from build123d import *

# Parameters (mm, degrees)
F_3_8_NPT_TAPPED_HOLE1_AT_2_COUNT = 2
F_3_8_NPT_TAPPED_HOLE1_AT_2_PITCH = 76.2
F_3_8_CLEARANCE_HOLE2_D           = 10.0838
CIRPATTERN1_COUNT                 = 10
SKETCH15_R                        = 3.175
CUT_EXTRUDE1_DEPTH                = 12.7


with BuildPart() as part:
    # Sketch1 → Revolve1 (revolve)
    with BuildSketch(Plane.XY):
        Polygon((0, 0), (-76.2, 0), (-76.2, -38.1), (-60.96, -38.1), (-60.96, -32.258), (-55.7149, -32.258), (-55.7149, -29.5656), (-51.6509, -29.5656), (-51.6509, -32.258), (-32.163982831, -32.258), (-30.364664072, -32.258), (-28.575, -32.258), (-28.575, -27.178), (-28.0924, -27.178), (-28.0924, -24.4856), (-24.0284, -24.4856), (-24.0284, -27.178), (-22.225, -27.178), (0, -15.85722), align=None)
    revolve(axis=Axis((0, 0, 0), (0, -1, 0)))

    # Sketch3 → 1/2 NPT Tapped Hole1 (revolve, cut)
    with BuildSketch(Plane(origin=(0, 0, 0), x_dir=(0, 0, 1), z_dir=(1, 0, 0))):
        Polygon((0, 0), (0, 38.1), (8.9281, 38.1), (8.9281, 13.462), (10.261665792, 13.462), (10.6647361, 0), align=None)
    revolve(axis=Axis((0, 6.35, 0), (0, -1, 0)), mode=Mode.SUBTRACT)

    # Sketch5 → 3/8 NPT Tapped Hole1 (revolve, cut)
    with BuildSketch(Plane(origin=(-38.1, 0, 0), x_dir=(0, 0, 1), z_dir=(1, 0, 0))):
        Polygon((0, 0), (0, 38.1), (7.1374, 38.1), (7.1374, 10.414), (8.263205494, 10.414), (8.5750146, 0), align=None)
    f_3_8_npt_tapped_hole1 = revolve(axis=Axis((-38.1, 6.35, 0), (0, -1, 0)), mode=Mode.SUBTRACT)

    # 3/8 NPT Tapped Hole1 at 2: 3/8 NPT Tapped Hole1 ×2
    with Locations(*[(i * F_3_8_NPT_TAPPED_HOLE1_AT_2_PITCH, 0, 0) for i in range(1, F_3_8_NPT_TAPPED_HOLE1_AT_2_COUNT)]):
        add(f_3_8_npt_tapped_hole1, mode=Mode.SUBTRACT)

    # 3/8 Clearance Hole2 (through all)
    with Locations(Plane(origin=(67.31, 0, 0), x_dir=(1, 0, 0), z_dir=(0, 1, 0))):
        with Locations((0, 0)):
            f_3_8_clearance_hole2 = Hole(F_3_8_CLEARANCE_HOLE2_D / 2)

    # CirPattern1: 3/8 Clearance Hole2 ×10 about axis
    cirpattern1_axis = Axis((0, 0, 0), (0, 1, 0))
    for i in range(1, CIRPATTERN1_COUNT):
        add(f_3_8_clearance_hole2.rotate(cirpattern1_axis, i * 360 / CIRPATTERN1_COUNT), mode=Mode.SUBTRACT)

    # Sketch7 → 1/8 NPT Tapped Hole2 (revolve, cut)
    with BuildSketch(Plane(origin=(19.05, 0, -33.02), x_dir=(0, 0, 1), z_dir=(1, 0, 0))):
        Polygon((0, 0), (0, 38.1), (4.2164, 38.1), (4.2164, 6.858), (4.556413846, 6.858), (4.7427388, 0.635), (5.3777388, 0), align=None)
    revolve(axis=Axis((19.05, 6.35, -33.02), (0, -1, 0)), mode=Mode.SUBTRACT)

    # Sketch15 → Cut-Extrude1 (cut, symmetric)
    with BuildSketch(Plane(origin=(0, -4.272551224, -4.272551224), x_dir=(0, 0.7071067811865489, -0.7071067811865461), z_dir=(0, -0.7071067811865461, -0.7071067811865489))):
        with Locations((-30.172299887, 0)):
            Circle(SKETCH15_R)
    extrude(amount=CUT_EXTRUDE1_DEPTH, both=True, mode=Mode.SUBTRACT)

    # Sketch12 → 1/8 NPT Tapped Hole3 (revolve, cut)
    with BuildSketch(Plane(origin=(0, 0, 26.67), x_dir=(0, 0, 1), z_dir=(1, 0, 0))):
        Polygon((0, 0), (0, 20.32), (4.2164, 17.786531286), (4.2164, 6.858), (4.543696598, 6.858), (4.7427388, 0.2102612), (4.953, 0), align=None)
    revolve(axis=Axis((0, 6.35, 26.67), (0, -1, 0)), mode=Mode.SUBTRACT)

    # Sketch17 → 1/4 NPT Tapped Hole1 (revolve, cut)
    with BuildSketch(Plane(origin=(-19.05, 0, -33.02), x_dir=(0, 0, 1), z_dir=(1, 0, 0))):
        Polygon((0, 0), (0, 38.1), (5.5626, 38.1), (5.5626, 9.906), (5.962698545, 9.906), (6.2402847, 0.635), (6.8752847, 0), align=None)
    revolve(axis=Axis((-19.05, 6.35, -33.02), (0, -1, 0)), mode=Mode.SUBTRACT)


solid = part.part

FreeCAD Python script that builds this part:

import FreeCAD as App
import Part
import Sketcher

V = App.Vector
Q = App.Units.Quantity


def add_polygon(sketch, points):
    """Adds a closed chain of lines whose ends are joined by coincident constraints."""
    first, n = sketch.GeometryCount, len(points)
    for a, b in zip(points, points[1:] + points[:1]):
        sketch.addGeometry(Part.LineSegment(App.Vector(*a, 0), App.Vector(*b, 0)), False)
    for i in range(n):
        sketch.addConstraint(Sketcher.Constraint("Coincident", first + i, 2, first + (i + 1) % n, 1))

doc = App.newDocument("Part")
params = doc.addObject("Spreadsheet::Sheet", "Params")
for row, (alias, value) in enumerate([
    ("sketch1_width", "3 in"),
    ("sketch1_width2", "0.6 in"),
    ("sketch1_height", "1.5 in"),
    ("sketch1_height2", "0.2 in"),
    ("sketch1_width3", "0.16 in"),
    ("revolution_angle", "360 deg"),
    ("sketch2_width", "1.5 in"),
    ("sketch2_width2", "0.97 in"),
    ("groove_angle", "360 deg"),
    ("sketch3_width", "1.5 in"),
    ("sketch3_width2", "1.09 in"),
    ("sketch3_height", "0.281 in"),
    ("groove2_angle", "360 deg"),
    ("linearpattern_pitch", "3 in"),
    ("sketch4_diameter", "0.397 in"),
    ("hole_diameter", "0.397 in"),
    ("sketch5_width", "1.5 in"),
    ("sketch5_width2", "1.23 in"),
    ("sketch5_height", "0.166 in"),
    ("groove3_angle", "360 deg"),
    ("sketch6_diameter", "0.25 in"),
    ("pocket1_length", "1 in"),
    ("sketch7_width", "0.8 in"),
    ("sketch7_height", "0.195 in"),
    ("groove4_angle", "360 deg"),
    ("sketch8_width", "1.5 in"),
    ("sketch8_width2", "1.11 in"),
    ("sketch8_height", "0.219 in"),
    ("groove5_angle", "360 deg"),
], start=1):
    params.set(f"A{row}", alias)
    params.set(f"B{row}", "=" + value)
    params.setAlias(f"B{row}", alias)

body = doc.addObject("PartDesign::Body", "Body")

sketch1 = body.newObject("Sketcher::SketchObject", "Sketch")
sketch1.AttachmentSupport = (doc.getObject("XY_Plane"), [""])
sketch1.MapMode = "FlatFace"
add_polygon(sketch1, [(0, 0), (-76.2, 0), (-76.2, -38.1), (-60.96, -38.1), (-60.96, -32.26), (-55.71, -32.26), (-55.71, -29.57), (-51.65, -29.57), (-51.65, -32.26), (-28.57, -32.26), (-28.57, -27.18), (-28.09, -27.18), (-28.09, -24.49), (-24.03, -24.49), (-24.03, -27.18), (-22.23, -27.18), (0, -15.86)])
sketch1.addConstraint([
    Sketcher.Constraint("Horizontal", 0),
    Sketcher.Constraint("Vertical", 1),
    Sketcher.Constraint("Horizontal", 2),
    Sketcher.Constraint("Vertical", 3),
    Sketcher.Constraint("Horizontal", 4),
    Sketcher.Constraint("Vertical", 5),
    Sketcher.Constraint("Horizontal", 6),
    Sketcher.Constraint("Vertical", 7),
    Sketcher.Constraint("Horizontal", 8),
    Sketcher.Constraint("Vertical", 9),
    Sketcher.Constraint("Horizontal", 10),
    Sketcher.Constraint("Vertical", 11),
    Sketcher.Constraint("Horizontal", 12),
    Sketcher.Constraint("Vertical", 13),
    Sketcher.Constraint("Horizontal", 14),
    Sketcher.Constraint("Vertical", 16),
    Sketcher.Constraint("Coincident", 16, 2, -1, 1),
    Sketcher.Constraint("Horizontal", 4, 2, 7, 2),
    Sketcher.Constraint("Horizontal", 10, 2, 13, 2),
    Sketcher.Constraint("Equal", 6, 12),
    Sketcher.Constraint("Equal", 7, 11),
    Sketcher.Constraint("DistanceX", 0, 2, 0, 1, Q("3 in")),
    Sketcher.Constraint("DistanceX", 2, 1, 2, 2, Q("0.6 in")),
    Sketcher.Constraint("DistanceY", 1, 2, 1, 1, Q("1.5 in")),
    Sketcher.Constraint("DistanceY", 9, 1, 9, 2, Q("0.2 in")),
    Sketcher.Constraint("DistanceX", 6, 1, 6, 2, Q("0.16 in")),
    Sketcher.Constraint("DistanceY", 3, 1, 3, 2, Q("0.23 in")),
    Sketcher.Constraint("DistanceX", 10, 1, 10, 2, Q("0.019 in")),
    Sketcher.Constraint("DistanceX", 14, 1, 14, 2, Q("0.071 in")),
    Sketcher.Constraint("DistanceY", 5, 1, 5, 2, Q("0.106 in")),
    Sketcher.Constraint("DistanceX", 4, 1, 4, 2, Q("0.2065 in")),
    Sketcher.Constraint("DistanceX", 8, 1, 8, 2, Q("0.9085 in")),
    Sketcher.Constraint("DistanceY", 16, 1, 16, 2, Q("0.6243 in")),
])
sketch1.setExpression("Constraints[38]", "Params.sketch1_width")
sketch1.setExpression("Constraints[39]", "Params.sketch1_width2")
sketch1.setExpression("Constraints[40]", "Params.sketch1_height")
sketch1.setExpression("Constraints[41]", "Params.sketch1_height2")
sketch1.setExpression("Constraints[42]", "Params.sketch1_width3")
revolution = body.newObject("PartDesign::Revolution", "Revolution")
revolution.Profile = sketch1
revolution.ReferenceAxis = (sketch1, ["V_Axis"])
revolution.setExpression("Angle", "Params.revolution_angle")

sketch2 = body.newObject("Sketcher::SketchObject", "Sketch001")
sketch2.AttachmentSupport = (doc.getObject("YZ_Plane"), [""])
sketch2.MapMode = "FlatFace"
add_polygon(sketch2, [(-38.1, 0), (0, 0), (0, 10.7), (-13.5, 10.3), (-13.5, 8.9), (-38.1, 8.9)])
sketch2.addConstraint([
    Sketcher.Constraint("Horizontal", 0),
    Sketcher.Constraint("Vertical", 1),
    Sketcher.Constraint("Vertical", 3),
    Sketcher.Constraint("Horizontal", 4),
    Sketcher.Constraint("Vertical", 5),
    Sketcher.Constraint("Coincident", 0, 2, -1, 1),
    Sketcher.Constraint("DistanceX", 0, 1, 0, 2, Q("1.5 in")),
    Sketcher.Constraint("DistanceX", 4, 2, 4, 1, Q("0.97 in")),
    Sketcher.Constraint("DistanceY", 5, 2, 5, 1, Q("0.3515 in")),
    Sketcher.Constraint("DistanceY", 1, 1, 1, 2, Q("10.664736 mm")),
    Sketcher.Constraint("DistanceY", 3, 2, 3, 1, Q("1.333566 mm")),
])
sketch2.setExpression("Constraints[12]", "Params.sketch2_width")
sketch2.setExpression("Constraints[13]", "Params.sketch2_width2")
groove = body.newObject("PartDesign::Groove", "Groove")
groove.Profile = sketch2
groove.ReferenceAxis = (sketch2, ["H_Axis"])
groove.setExpression("Angle", "Params.groove_angle")

sketch3 = body.newObject("Sketcher::SketchObject", "Sketch002")
sketch3.AttachmentSupport = (doc.getObject("YZ_Plane"), [""])
sketch3.MapMode = "FlatFace"
sketch3.AttachmentOffset = App.Placement(V(0, 0, -1.5 * 25.4), App.Rotation())
add_polygon(sketch3, [(-38.1, 0), (0, 0), (0, 8.6), (-10.4, 8.3), (-10.4, 7.1), (-38.1, 7.1)])
sketch3.addConstraint([
    Sketcher.Constraint("Horizontal", 0),
    Sketcher.Constraint("Vertical", 1),
    Sketcher.Constraint("Vertical", 3),
    Sketcher.Constraint("Horizontal", 4),
    Sketcher.Constraint("Vertical", 5),
    Sketcher.Constraint("Coincident", 0, 2, -1, 1),
    Sketcher.Constraint("DistanceX", 0, 1, 0, 2, Q("1.5 in")),
    Sketcher.Constraint("DistanceX", 4, 2, 4, 1, Q("1.09 in")),
    Sketcher.Constraint("DistanceY", 5, 2, 5, 1, Q("0.281 in")),
    Sketcher.Constraint("DistanceY", 1, 1, 1, 2, Q("8.575015 mm")),
    Sketcher.Constraint("DistanceY", 3, 2, 3, 1, Q("1.125805 mm")),
])
sketch3.setExpression("Constraints[12]", "Params.sketch3_width")
sketch3.setExpression("Constraints[13]", "Params.sketch3_width2")
sketch3.setExpression("Constraints[14]", "Params.sketch3_height")
groove2 = body.newObject("PartDesign::Groove", "Groove001")
groove2.Profile = sketch3
groove2.ReferenceAxis = (sketch3, ["H_Axis"])
groove2.setExpression("Angle", "Params.groove2_angle")
doc.recompute()

linearpattern = body.newObject("PartDesign::LinearPattern", "LinearPattern")
linearpattern.Originals = [groove2]
linearpattern.Direction = (doc.getObject("X_Axis"), [""])
linearpattern.Mode = "offset"
linearpattern.setExpression("Offset", "Params.linearpattern_pitch")
linearpattern.Occurrences = 2
body.Tip = linearpattern

sketch4 = body.newObject("Sketcher::SketchObject", "Sketch003")
sketch4.AttachmentSupport = (doc.getObject("XZ_Plane"), [""])
sketch4.MapMode = "FlatFace"
sketch4.addGeometry(Part.Circle(V(67, 0, 0), V(0, 0, 1), 5), False)
sketch4.addConstraint([
    Sketcher.Constraint("PointOnObject", 0, 3, -1),
    Sketcher.Constraint("Diameter", 0, Q("0.397 in")),
    Sketcher.Constraint("DistanceX", -1, 1, 0, 3, Q("2.65 in")),
])
sketch4.setExpression("Constraints[1]", "Params.sketch4_diameter")
doc.recompute()
hole = body.newObject("PartDesign::Hole", "Hole")
hole.Profile = sketch4
hole.ThreadType = "None"
hole.setExpression("Diameter", "Params.hole_diameter")
hole.DepthType = "ThroughAll"
hole.Reversed = True
doc.recompute()

polarpattern = body.newObject("PartDesign::PolarPattern", "PolarPattern")
polarpattern.Originals = [hole]
polarpattern.Axis = (doc.getObject("Y_Axis"), [""])
polarpattern.Angle = 360
polarpattern.Occurrences = 10
body.Tip = polarpattern

sketch5 = body.newObject("Sketcher::SketchObject", "Sketch004")
sketch5.AttachmentSupport = (doc.getObject("YZ_Plane"), [""])
sketch5.MapMode = "FlatFace"
sketch5.AttachmentOffset = App.Placement(V(0, 0, 0.75 * 25.4), App.Rotation())
add_polygon(sketch5, [(-38.1, -33.02), (0, -33.02), (0, -27.64), (-0.64, -28.28), (-6.86, -28.46), (-6.86, -28.8), (-38.1, -28.8)])
sketch5.addGeometry(Part.LineSegment(V(0, -33.02, 0), V(-38.1, -33.02, 0)), True)
sketch5.addConstraint([
    Sketcher.Constraint("Horizontal", 0),
    Sketcher.Constraint("Vertical", 1),
    Sketcher.Constraint("Vertical", 4),
    Sketcher.Constraint("Horizontal", 5),
    Sketcher.Constraint("Vertical", 6),
    Sketcher.Constraint("Horizontal", 7),
    Sketcher.Constraint("Coincident", 7, 1, 0, 2),
    Sketcher.Constraint("PointOnObject", 0, 2, -2),
    Sketcher.Constraint("Vertical", 5, 2, 7, 2),
    Sketcher.Constraint("DistanceX", 0, 1, 0, 2, Q("1.5 in")),
    Sketcher.Constraint("Angle", 2, Q("-135 deg")),
    Sketcher.Constraint("DistanceX", 5, 2, 5, 1, Q("1.23 in")),
    Sketcher.Constraint("DistanceY", 0, 2, -1, 1, Q("1.3 in")),
    Sketcher.Constraint("DistanceY", 6, 2, 6, 1, Q("0.166 in")),
    Sketcher.Constraint("DistanceX", 2, 2, -1, 1, Q("0.025 in")),
    Sketcher.Constraint("DistanceY", 1, 1, 1, 2, Q("5.377739 mm")),
    Sketcher.Constraint("Distance", 3, Q("6.225789 mm")),
])
sketch5.setExpression("Constraints[16]", "Params.sketch5_width")
sketch5.setExpression("Constraints[18]", "Params.sketch5_width2")
sketch5.setExpression("Constraints[20]", "Params.sketch5_height")
groove3 = body.newObject("PartDesign::Groove", "Groove002")
groove3.Profile = sketch5
groove3.ReferenceAxis = (sketch5, ["Axis0"])
groove3.setExpression("Angle", "Params.groove3_angle")

sketch6 = body.newObject("Sketcher::SketchObject", "Sketch005")
sketch6.Placement = App.Placement(V(0, -4.272551, -4.272551), App.Rotation(V(0, 0.707106781, -0.707106781), V(0.999999999, 0, 0), V(0, -0.707106781, -0.707106781), "ZXY"))
sketch6.addGeometry(Part.Circle(V(-30.2, 0, 0), V(0, 0, 1), 3.2), False)
sketch6.addConstraint([
    Sketcher.Constraint("PointOnObject", 0, 3, -1),
    Sketcher.Constraint("Diameter", 0, Q("0.25 in")),
    Sketcher.Constraint("DistanceX", 0, 3, -1, 1, Q("30.1723 mm")),
])
sketch6.setExpression("Constraints[1]", "Params.sketch6_diameter")
pocket1 = body.newObject("PartDesign::Pocket", "Pocket")
pocket1.Profile = sketch6
pocket1.setExpression("Length", "Params.pocket1_length")
pocket1.Midplane = True

sketch7 = body.newObject("Sketcher::SketchObject", "Sketch006")
sketch7.AttachmentSupport = (doc.getObject("YZ_Plane"), [""])
sketch7.MapMode = "FlatFace"
add_polygon(sketch7, [(-20.32, 26.67), (0, 26.67), (0, 31.62), (-0.21, 31.41), (-6.86, 31.21), (-6.86, 30.89), (-17.79, 30.89)])
sketch7.addGeometry(Part.LineSegment(V(0, 26.67, 0), V(-20.32, 26.67, 0)), True)
sketch7.addConstraint([
    Sketcher.Constraint("Horizontal", 0),
    Sketcher.Constraint("Vertical", 1),
    Sketcher.Constraint("Vertical", 4),
    Sketcher.Constraint("Horizontal", 5),
    Sketcher.Constraint("Horizontal", 7),
    Sketcher.Constraint("Coincident", 7, 1, 0, 2),
    Sketcher.Constraint("PointOnObject", 0, 2, -2),
    Sketcher.Constraint("Equal", 0, 7),
    Sketcher.Constraint("DistanceX", 0, 1, 0, 2, Q("0.8 in")),
    Sketcher.Constraint("Angle", 2, Q("-135 deg")),
    Sketcher.Constraint("Angle", 6, Q("-121 deg")),
    Sketcher.Constraint("DistanceY", 1, 1, 1, 2, Q("0.195 in")),
    Sketcher.Constraint("DistanceY", -1, 1, 0, 2, Q("1.05 in")),
    Sketcher.Constraint("DistanceX", 3, 2, -1, 1, Q("0.27 in")),
    Sketcher.Constraint("DistanceY", -1, 1, 4, 2, Q("1.216 in")),
    Sketcher.Constraint("DistanceY", 4, 2, 4, 1, Q("0.327297 mm")),
    Sketcher.Constraint("DistanceX", 2, 2, -1, 1, Q("0.210261 mm")),
])
sketch7.setExpression("Constraints[15]", "Params.sketch7_width")
sketch7.setExpression("Constraints[18]", "Params.sketch7_height")
groove4 = body.newObject("PartDesign::Groove", "Groove003")
groove4.Profile = sketch7
groove4.ReferenceAxis = (sketch7, ["Axis0"])
groove4.setExpression("Angle", "Params.groove4_angle")

sketch8 = body.newObject("Sketcher::SketchObject", "Sketch007")
sketch8.AttachmentSupport = (doc.getObject("YZ_Plane"), [""])
sketch8.MapMode = "FlatFace"
sketch8.AttachmentOffset = App.Placement(V(0, 0, -0.75 * 25.4), App.Rotation())
add_polygon(sketch8, [(-38.1, -33.02), (0, -33.02), (0, -26.14), (-0.64, -26.78), (-9.91, -27.06), (-9.91, -27.46), (-38.1, -27.46)])
sketch8.addGeometry(Part.LineSegment(V(0, -33.02, 0), V(-38.1, -33.02, 0)), True)
sketch8.addConstraint([
    Sketcher.Constraint("Horizontal", 0),
    Sketcher.Constraint("Vertical", 1),
    Sketcher.Constraint("Vertical", 4),
    Sketcher.Constraint("Horizontal", 5),
    Sketcher.Constraint("Vertical", 6),
    Sketcher.Constraint("Horizontal", 7),
    Sketcher.Constraint("Coincident", 7, 1, 0, 2),
    Sketcher.Constraint("PointOnObject", 0, 2, -2),
    Sketcher.Constraint("Vertical", 5, 2, 7, 2),
    Sketcher.Constraint("DistanceX", 0, 1, 0, 2, Q("1.5 in")),
    Sketcher.Constraint("Angle", 2, Q("-135 deg")),
    Sketcher.Constraint("DistanceX", 5, 2, 5, 1, Q("1.11 in")),
    Sketcher.Constraint("DistanceY", 0, 2, -1, 1, Q("1.3 in")),
    Sketcher.Constraint("DistanceY", 6, 2, 6, 1, Q("0.219 in")),
    Sketcher.Constraint("DistanceX", 2, 2, -1, 1, Q("0.025 in")),
    Sketcher.Constraint("DistanceY", 4, 2, 4, 1, Q("0.400099 mm")),
    Sketcher.Constraint("DistanceY", 1, 1, 1, 2, Q("6.875285 mm")),
])
sketch8.setExpression("Constraints[16]", "Params.sketch8_width")
sketch8.setExpression("Constraints[18]", "Params.sketch8_width2")
sketch8.setExpression("Constraints[20]", "Params.sketch8_height")
groove5 = body.newObject("PartDesign::Groove", "Groove004")
groove5.Profile = sketch8
groove5.ReferenceAxis = (sketch8, ["Axis0"])
groove5.setExpression("Angle", "Params.groove5_angle")

doc.recompute()
